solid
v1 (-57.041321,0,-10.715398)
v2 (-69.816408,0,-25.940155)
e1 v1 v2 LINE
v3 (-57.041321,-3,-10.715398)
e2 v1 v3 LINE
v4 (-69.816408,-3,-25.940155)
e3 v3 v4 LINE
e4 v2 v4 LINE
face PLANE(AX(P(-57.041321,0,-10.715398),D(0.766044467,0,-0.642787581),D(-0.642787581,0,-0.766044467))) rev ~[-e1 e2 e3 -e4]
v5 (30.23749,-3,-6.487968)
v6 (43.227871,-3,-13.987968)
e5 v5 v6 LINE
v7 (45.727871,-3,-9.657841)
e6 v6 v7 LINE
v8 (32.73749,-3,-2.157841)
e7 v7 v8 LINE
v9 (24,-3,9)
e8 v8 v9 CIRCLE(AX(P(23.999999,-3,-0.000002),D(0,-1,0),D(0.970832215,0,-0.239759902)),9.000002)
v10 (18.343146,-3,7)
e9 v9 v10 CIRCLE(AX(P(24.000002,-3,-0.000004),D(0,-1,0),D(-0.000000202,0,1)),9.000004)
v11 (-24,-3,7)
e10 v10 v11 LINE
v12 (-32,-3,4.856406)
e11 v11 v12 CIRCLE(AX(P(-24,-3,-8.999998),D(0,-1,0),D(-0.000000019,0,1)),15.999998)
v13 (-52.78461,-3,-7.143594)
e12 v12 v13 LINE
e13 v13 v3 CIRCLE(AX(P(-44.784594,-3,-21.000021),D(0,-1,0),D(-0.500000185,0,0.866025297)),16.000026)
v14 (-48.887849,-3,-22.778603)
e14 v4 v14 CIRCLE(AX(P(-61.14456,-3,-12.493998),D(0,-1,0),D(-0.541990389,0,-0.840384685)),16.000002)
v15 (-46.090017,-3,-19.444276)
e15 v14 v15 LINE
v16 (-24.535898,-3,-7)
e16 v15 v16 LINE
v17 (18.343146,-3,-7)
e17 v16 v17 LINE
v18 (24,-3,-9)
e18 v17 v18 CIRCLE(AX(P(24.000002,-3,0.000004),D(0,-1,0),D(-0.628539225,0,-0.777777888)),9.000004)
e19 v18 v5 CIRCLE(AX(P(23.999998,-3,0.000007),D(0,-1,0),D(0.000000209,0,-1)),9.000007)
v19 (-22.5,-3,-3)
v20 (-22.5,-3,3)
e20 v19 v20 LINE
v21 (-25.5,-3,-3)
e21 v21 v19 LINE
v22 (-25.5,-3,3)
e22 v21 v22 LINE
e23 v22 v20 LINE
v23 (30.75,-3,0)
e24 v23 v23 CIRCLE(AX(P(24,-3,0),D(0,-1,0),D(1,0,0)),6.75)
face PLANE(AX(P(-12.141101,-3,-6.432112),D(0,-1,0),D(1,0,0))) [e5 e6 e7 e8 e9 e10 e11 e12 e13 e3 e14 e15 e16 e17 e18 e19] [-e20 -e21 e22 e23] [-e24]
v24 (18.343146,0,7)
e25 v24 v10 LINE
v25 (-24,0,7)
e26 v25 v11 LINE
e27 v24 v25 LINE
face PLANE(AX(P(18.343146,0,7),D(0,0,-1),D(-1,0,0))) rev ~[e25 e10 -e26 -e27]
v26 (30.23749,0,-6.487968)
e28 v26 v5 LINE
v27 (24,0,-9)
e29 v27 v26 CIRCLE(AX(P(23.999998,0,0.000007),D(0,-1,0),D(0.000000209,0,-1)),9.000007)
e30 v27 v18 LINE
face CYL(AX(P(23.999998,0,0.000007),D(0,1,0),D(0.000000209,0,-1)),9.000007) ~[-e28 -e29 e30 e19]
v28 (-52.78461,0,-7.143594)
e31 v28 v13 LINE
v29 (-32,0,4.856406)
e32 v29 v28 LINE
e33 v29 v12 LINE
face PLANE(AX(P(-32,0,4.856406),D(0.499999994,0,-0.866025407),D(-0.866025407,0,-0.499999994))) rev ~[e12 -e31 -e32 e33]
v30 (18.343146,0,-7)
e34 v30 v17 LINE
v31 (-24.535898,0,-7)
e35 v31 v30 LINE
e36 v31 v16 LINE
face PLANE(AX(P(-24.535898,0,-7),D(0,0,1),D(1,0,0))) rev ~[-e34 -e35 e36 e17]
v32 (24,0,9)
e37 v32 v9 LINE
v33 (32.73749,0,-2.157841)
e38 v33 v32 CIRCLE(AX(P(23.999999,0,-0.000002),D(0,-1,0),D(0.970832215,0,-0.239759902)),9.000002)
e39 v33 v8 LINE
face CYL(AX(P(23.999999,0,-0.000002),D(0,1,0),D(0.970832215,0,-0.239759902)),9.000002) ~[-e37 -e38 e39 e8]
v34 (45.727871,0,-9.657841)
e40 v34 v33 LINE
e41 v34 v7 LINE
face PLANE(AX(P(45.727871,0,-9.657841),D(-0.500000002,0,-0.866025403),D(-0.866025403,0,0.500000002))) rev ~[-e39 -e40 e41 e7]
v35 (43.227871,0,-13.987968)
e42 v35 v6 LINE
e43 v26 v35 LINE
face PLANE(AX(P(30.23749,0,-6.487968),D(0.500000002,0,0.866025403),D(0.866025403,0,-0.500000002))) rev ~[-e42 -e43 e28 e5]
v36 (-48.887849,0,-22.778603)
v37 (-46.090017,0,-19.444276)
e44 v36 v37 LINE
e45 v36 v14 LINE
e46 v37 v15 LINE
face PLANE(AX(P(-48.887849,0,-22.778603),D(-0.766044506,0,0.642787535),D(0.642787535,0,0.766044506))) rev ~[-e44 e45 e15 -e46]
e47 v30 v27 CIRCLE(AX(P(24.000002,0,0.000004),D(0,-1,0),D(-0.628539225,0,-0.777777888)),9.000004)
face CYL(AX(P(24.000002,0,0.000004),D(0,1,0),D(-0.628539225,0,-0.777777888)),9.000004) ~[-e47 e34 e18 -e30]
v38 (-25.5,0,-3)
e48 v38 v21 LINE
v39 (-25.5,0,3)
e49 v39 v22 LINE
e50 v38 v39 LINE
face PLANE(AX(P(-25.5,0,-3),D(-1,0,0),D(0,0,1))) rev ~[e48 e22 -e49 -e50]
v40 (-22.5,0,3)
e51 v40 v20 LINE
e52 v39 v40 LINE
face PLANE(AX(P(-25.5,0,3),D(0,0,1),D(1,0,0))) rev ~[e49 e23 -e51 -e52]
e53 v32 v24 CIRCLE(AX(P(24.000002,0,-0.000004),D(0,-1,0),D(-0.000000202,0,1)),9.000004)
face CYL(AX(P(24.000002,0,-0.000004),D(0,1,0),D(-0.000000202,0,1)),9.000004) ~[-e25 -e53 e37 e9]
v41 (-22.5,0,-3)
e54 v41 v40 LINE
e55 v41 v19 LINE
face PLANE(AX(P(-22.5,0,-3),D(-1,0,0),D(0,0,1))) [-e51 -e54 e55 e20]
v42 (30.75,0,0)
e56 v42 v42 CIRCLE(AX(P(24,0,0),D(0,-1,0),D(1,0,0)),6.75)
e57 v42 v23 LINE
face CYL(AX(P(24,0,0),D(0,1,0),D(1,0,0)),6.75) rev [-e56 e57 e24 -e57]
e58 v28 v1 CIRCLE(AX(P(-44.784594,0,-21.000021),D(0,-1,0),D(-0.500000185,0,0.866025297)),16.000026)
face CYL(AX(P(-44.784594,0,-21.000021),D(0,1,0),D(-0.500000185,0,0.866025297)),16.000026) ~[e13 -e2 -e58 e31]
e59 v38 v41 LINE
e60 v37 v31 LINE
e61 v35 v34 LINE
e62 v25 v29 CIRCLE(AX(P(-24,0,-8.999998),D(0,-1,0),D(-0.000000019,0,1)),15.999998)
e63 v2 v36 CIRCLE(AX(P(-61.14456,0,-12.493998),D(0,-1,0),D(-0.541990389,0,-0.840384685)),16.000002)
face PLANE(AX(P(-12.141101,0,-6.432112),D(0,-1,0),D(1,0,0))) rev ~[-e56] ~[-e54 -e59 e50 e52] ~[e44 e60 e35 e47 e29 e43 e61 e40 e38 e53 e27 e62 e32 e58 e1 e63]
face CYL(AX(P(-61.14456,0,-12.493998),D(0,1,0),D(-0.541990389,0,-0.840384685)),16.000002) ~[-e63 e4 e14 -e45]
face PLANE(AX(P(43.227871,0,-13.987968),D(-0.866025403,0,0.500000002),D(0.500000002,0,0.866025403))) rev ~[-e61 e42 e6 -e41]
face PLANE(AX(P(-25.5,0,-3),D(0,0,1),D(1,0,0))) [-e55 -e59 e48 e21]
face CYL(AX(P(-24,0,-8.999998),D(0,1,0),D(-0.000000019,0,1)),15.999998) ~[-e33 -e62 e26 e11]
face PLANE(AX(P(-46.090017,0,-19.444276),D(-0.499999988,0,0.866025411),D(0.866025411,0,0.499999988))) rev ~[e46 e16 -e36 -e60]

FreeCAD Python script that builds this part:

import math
import FreeCAD as App
import Part
import Sketcher
from FreeCAD import Vector

doc = App.newDocument("Part")
body = doc.addObject("PartDesign::Body", "Body")

sketch1 = doc.addObject("Sketcher::SketchObject", "Sketch")
body.addObject(sketch1)
sketch1.AttachmentSupport = (doc.XZ_Plane, [""])
sketch1.MapMode = "FlatFace"
sketch1.addGeometry([
    Part.LineSegment(Vector(-46.090017, -19.444276, 0), Vector(-24.535898, -7, 0)),
    Part.LineSegment(Vector(-24.535898, -7, 0), Vector(18.343146, -7, 0)),
    Part.ArcOfCircle(Part.Circle(Vector(24.000002, 0.000004, 0), Vector(0, 0, 1), 9.000004), math.radians(-128.942431), math.radians(-90.000012)),
    Part.ArcOfCircle(Part.Circle(Vector(23.999998, 0.000007, 0), Vector(0, 0, 1), 9.000007), math.radians(-89.999988), math.radians(-46.127641)),
    Part.LineSegment(Vector(30.23749, -6.487968, 0), Vector(43.227871, -13.987968, 0)),
    Part.LineSegment(Vector(43.227871, -13.987968, 0), Vector(45.727871, -9.657841, 0)),
    Part.LineSegment(Vector(45.727871, -9.657841, 0), Vector(32.73749, -2.157841, 0)),
    Part.ArcOfCircle(Part.Circle(Vector(23.999999, -0.000002, 0), Vector(0, 0, 1), 9.000002), math.radians(-13.87237), math.radians(89.999991)),
    Part.ArcOfCircle(Part.Circle(Vector(24.000002, -0.000004, 0), Vector(0, 0, 1), 9.000004), math.radians(90.000012), math.radians(128.942431)),
    Part.LineSegment(Vector(18.343146, 7, 0), Vector(-24, 7, 0)),
    Part.ArcOfCircle(Part.Circle(Vector(-24, -8.999998, 0), Vector(0, 0, 1), 15.999998), math.radians(90.000001), math.radians(120.000005)),
    Part.LineSegment(Vector(-32, 4.856406, 0), Vector(-52.78461, -7.143594, 0)),
    Part.ArcOfCircle(Part.Circle(Vector(-44.784594, -21.000021, 0), Vector(0, 0, 1), 16.000026), math.radians(120.000012), math.radians(139.999978)),
    Part.LineSegment(Vector(-57.041321, -10.715398, 0), Vector(-69.816408, -25.940155, 0)),
    Part.ArcOfCircle(Part.Circle(Vector(-61.14456, -12.493998, 0), Vector(0, 0, 1), 16.000002), math.radians(-122.819236), math.radians(-40.000008)),
    Part.LineSegment(Vector(-48.887849, -22.778603, 0), Vector(-46.090017, -19.444276, 0)),
    Part.LineSegment(Vector(-22.5, -3, 0), Vector(-25.5, -3, 0)),
    Part.LineSegment(Vector(-25.5, -3, 0), Vector(-25.5, 3, 0)),
    Part.LineSegment(Vector(-25.5, 3, 0), Vector(-22.5, 3, 0)),
    Part.LineSegment(Vector(-22.5, 3, 0), Vector(-22.5, -3, 0)),
    Part.Circle(Vector(24, 0, 0), Vector(0, 0, 1), 6.75),
], False)
sketch1.addConstraint([
    Sketcher.Constraint("Coincident", 0, 2, 1, 1),
    Sketcher.Constraint("Coincident", 1, 2, 2, 1),
    Sketcher.Constraint("Coincident", 2, 2, 3, 1),
    Sketcher.Constraint("Coincident", 3, 2, 4, 1),
    Sketcher.Constraint("Coincident", 4, 2, 5, 1),
    Sketcher.Constraint("Coincident", 5, 2, 6, 1),
    Sketcher.Constraint("Coincident", 6, 2, 7, 1),
    Sketcher.Constraint("Coincident", 7, 2, 8, 1),
    Sketcher.Constraint("Coincident", 8, 2, 9, 1),
    Sketcher.Constraint("Coincident", 9, 2, 10, 1),
    Sketcher.Constraint("Coincident", 10, 2, 11, 1),
    Sketcher.Constraint("Coincident", 11, 2, 12, 1),
    Sketcher.Constraint("Coincident", 12, 2, 13, 1),
    Sketcher.Constraint("Coincident", 13, 2, 14, 1),
    Sketcher.Constraint("Coincident", 14, 2, 15, 1),
    Sketcher.Constraint("Coincident", 15, 2, 0, 1),
    Sketcher.Constraint("Coincident", 16, 2, 17, 1),
    Sketcher.Constraint("Coincident", 17, 2, 18, 1),
    Sketcher.Constraint("Coincident", 18, 2, 19, 1),
    Sketcher.Constraint("Coincident", 19, 2, 16, 1),
    Sketcher.Constraint("Horizontal", 1),
    Sketcher.Constraint("Horizontal", 9),
    Sketcher.Constraint("Horizontal", 16),
    Sketcher.Constraint("Vertical", 17),
    Sketcher.Constraint("Horizontal", 18),
    Sketcher.Constraint("Vertical", 19),
    Sketcher.Constraint("Coincident", 3, 3, 2, 3),
    Sketcher.Constraint("Coincident", 7, 3, 2, 3),
    Sketcher.Constraint("Coincident", 8, 3, 2, 3),
    Sketcher.Constraint("Coincident", 20, 3, 2, 3),
    Sketcher.Constraint("PointOnObject", 7, 3, -1),
    Sketcher.Constraint("Radius", 7, 9.000002),
    Sketcher.Constraint("Radius", 10, 15.999998),
    Sketcher.Constraint("Diameter", 20, 13.5),
    Sketcher.Constraint("DistanceX", 16, 2, 16, 1, 3.0),
    Sketcher.Constraint("DistanceY", 17, 1, 17, 2, 6.0),
    Sketcher.Constraint("Distance", 4, 15.0),
    Sketcher.Constraint("Distance", 5, 5.0),
    Sketcher.Constraint("Distance", 6, 15.0),
    Sketcher.Constraint("Distance", 11, 24.0),
    Sketcher.Constraint("DistanceX", -1, 1, 2, 3, 24.000002),
    Sketcher.Constraint("DistanceX", 10, 3, -1, 1, 24.0),
    Sketcher.Constraint("DistanceY", 10, 3, -1, 1, 8.999998),
    Sketcher.Constraint("DistanceY", 0, 2, -1, 1, 7.0),
    Sketcher.Constraint("DistanceX", -1, 1, 2, 2, 24.0),
    Sketcher.Constraint("DistanceY", 2, 2, -1, 1, 9.0),
    Sketcher.Constraint("DistanceX", -1, 1, 7, 2, 24.0),
    Sketcher.Constraint("DistanceX", 9, 2, -1, 1, 24.0),
    Sketcher.Constraint("DistanceX", 10, 2, -1, 1, 32.0),
    Sketcher.Constraint("DistanceY", 16, 2, -1, 1, 3.0),
    Sketcher.Constraint("DistanceY", 11, 2, 10, 2, 12.0),
    Sketcher.Constraint("DistanceX", 16, 2, -1, 1, 25.5),
    Sketcher.Constraint("DistanceY", 4, 2, 3, 2, 7.5),
    Sketcher.Constraint("DistanceX", 4, 2, 5, 2, 2.5),
    Sketcher.Constraint("DistanceX", 3, 2, 6, 2, 2.5),
    Sketcher.Constraint("DistanceY", 14, 3, -1, 1, 12.493998),
    Sketcher.Constraint("Radius", 12, 16.000026),
    Sketcher.Constraint("Radius", 14, 16.000002),
    Sketcher.Constraint("DistanceX", 0, 2, 10, 3, 0.535898),
    Sketcher.Constraint("DistanceY", 14, 3, 12, 2, 1.7786),
    Sketcher.Constraint("Distance", 13, 19.874508),
    Sketcher.Constraint("DistanceY", 12, 3, -1, 1, 21.000021),
    Sketcher.Constraint("DistanceX", 14, 3, -1, 1, 61.14456),
    Sketcher.Constraint("DistanceX", 14, 2, -1, 1, 48.887849),
    Sketcher.Constraint("DistanceY", 15, 2, 11, 2, 12.300682),
    Sketcher.Constraint("Distance", 0, 24.888553),
])
pad1 = doc.addObject("PartDesign::Pad", "Pad")
body.addObject(pad1)
pad1.Profile = sketch1
pad1.Length = 3

doc.recompute()
